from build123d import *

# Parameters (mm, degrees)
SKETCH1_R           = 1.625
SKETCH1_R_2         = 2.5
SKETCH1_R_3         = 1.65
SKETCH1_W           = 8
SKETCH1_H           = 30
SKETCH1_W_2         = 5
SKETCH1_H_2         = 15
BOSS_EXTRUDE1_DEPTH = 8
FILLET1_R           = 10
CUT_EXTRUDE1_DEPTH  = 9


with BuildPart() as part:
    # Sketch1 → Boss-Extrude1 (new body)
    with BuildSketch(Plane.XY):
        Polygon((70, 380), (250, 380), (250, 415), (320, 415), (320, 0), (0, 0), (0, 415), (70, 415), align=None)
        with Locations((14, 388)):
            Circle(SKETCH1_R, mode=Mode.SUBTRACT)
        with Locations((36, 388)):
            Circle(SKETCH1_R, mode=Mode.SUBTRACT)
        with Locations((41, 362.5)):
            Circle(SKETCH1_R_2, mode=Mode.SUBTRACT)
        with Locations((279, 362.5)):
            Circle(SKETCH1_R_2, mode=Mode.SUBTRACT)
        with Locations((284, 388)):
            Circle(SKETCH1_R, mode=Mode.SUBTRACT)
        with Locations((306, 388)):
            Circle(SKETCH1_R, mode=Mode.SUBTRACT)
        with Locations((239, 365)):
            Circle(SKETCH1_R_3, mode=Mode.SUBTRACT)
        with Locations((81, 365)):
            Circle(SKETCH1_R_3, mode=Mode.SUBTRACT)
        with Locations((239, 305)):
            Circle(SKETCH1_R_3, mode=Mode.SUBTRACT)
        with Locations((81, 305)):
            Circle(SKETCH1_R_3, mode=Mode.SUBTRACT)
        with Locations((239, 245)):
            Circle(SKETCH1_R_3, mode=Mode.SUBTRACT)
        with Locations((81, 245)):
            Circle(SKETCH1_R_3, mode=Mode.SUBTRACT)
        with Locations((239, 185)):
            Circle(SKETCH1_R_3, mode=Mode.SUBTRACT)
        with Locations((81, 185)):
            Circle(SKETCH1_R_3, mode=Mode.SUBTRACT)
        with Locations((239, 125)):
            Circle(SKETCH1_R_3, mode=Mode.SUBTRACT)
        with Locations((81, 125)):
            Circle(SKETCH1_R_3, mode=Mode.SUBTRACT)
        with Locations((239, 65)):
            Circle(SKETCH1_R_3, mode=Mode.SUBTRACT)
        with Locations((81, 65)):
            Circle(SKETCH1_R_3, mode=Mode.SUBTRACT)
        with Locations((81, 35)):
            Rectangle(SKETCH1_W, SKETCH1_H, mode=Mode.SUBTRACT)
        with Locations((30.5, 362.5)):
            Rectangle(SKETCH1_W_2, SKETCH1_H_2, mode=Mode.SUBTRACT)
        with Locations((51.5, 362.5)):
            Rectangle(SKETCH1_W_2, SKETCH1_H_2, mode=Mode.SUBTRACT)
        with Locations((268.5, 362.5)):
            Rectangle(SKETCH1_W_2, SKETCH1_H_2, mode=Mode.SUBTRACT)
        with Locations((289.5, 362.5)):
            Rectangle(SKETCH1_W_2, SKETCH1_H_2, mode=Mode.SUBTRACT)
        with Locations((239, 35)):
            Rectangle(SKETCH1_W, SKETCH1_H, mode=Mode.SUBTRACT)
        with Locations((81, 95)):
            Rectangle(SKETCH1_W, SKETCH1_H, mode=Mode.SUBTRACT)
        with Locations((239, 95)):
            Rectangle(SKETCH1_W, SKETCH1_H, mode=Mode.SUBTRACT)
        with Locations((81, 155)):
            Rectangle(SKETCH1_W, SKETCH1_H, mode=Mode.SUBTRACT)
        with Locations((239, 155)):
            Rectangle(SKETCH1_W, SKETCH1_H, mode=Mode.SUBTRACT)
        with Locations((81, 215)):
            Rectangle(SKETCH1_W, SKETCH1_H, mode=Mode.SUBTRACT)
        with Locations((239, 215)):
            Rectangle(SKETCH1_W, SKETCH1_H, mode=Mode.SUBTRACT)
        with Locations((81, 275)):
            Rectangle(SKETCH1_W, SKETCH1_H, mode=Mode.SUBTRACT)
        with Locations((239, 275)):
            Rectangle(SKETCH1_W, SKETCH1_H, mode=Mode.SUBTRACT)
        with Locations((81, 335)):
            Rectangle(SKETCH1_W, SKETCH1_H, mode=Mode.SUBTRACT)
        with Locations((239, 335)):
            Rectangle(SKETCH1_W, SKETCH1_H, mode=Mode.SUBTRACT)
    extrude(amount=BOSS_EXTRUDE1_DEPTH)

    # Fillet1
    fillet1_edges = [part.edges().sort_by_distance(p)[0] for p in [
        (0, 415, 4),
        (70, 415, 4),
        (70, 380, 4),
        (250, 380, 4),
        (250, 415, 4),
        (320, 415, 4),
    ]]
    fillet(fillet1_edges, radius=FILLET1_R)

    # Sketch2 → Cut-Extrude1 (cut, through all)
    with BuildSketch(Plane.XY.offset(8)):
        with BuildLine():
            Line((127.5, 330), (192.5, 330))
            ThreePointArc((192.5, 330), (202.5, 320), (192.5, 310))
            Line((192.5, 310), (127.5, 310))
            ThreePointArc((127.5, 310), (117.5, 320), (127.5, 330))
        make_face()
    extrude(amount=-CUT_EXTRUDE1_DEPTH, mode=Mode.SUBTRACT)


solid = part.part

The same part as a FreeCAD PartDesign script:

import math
import FreeCAD as App
import Part
import Sketcher
from FreeCAD import Vector


def edges_at(feature, points):
    """Names of the edges that pass closest to the given points."""
    edges = feature.Shape.Edges
    near = lambda p: min(range(len(edges)), key=lambda i: edges[i].distToShape(Part.Vertex(*p))[0])
    return sorted({f"Edge{near(p) + 1}" for p in points})


def add_polygon(sketch, points):
    """Adds a closed chain of lines whose ends are joined by coincident constraints."""
    first, n = sketch.GeometryCount, len(points)
    for a, b in zip(points, points[1:] + points[:1]):
        sketch.addGeometry(Part.LineSegment(App.Vector(*a, 0), App.Vector(*b, 0)), False)
    for i in range(n):
        sketch.addConstraint(Sketcher.Constraint("Coincident", first + i, 2, first + (i + 1) % n, 1))

doc = App.newDocument("Part")
body = doc.addObject("PartDesign::Body", "Body")

sketch1 = body.newObject("Sketcher::SketchObject", "Sketch")
sketch1.AttachmentSupport = (doc.getObject("XY_Plane"), [""])
sketch1.MapMode = "FlatFace"
add_polygon(sketch1, [(250, 380), (70, 380), (70, 415), (0, 415), (0, 0), (320, 0), (320, 415), (250, 415)])
add_polygon(sketch1, [(235, 20), (235, 50), (243, 50), (243, 20)])
sketch1.addGeometry(Part.Circle(Vector(239, 65, 0), Vector(0, 0, 1), 1.65), False)
add_polygon(sketch1, [(235, 80), (235, 110), (243, 110), (243, 80)])
sketch1.addGeometry(Part.Circle(Vector(239, 125, 0), Vector(0, 0, 1), 1.65), False)
add_polygon(sketch1, [(235, 140), (235, 170), (243, 170), (243, 140)])
sketch1.addGeometry(Part.Circle(Vector(239, 185, 0), Vector(0, 0, 1), 1.65), False)
add_polygon(sketch1, [(77, 20), (77, 50), (85, 50), (85, 20)])
sketch1.addGeometry(Part.Circle(Vector(81, 65, 0), Vector(0, 0, 1), 1.65), False)
add_polygon(sketch1, [(77, 80), (77, 110), (85, 110), (85, 80)])
sketch1.addGeometry(Part.Circle(Vector(81, 125, 0), Vector(0, 0, 1), 1.65), False)
add_polygon(sketch1, [(77, 140), (77, 170), (85, 170), (85, 140)])
sketch1.addGeometry(Part.Circle(Vector(81, 185, 0), Vector(0, 0, 1), 1.65), False)
add_polygon(sketch1, [(235, 200), (235, 230), (243, 230), (243, 200)])
sketch1.addGeometry(Part.Circle(Vector(239, 245, 0), Vector(0, 0, 1), 1.65), False)
add_polygon(sketch1, [(235, 260), (235, 290), (243, 290), (243, 260)])
sketch1.addGeometry(Part.Circle(Vector(239, 305, 0), Vector(0, 0, 1), 1.65), False)
add_polygon(sketch1, [(235, 320), (235, 350), (243, 350), (243, 320)])
add_polygon(sketch1, [(287, 355), (287, 370), (292, 370), (292, 355)])
sketch1.addGeometry(Part.Circle(Vector(279, 362.5, 0), Vector(0, 0, 1), 2.5), False)
sketch1.addGeometry(Part.Circle(Vector(306, 388, 0), Vector(0, 0, 1), 1.625), False)
sketch1.addGeometry(Part.Circle(Vector(284, 388, 0), Vector(0, 0, 1), 1.625), False)
add_polygon(sketch1, [(266, 355), (266, 370), (271, 370), (271, 355)])
sketch1.addGeometry(Part.Circle(Vector(239, 365, 0), Vector(0, 0, 1), 1.65), False)
add_polygon(sketch1, [(77, 200), (77, 230), (85, 230), (85, 200)])
sketch1.addGeometry(Part.Circle(Vector(81, 245, 0), Vector(0, 0, 1), 1.65), False)
add_polygon(sketch1, [(77, 260), (77, 290), (85, 290), (85, 260)])
sketch1.addGeometry(Part.Circle(Vector(81, 305, 0), Vector(0, 0, 1), 1.65), False)
add_polygon(sketch1, [(77, 320), (77, 350), (85, 350), (85, 320)])
sketch1.addGeometry(Part.Circle(Vector(81, 365, 0), Vector(0, 0, 1), 1.65), False)
add_polygon(sketch1, [(49, 355), (49, 370), (54, 370), (54, 355)])
sketch1.addGeometry(Part.Circle(Vector(41, 362.5, 0), Vector(0, 0, 1), 2.5), False)
add_polygon(sketch1, [(28, 355), (28, 370), (33, 370), (33, 355)])
sketch1.addGeometry(Part.Circle(Vector(36, 388, 0), Vector(0, 0, 1), 1.625), False)
sketch1.addGeometry(Part.Circle(Vector(14, 388, 0), Vector(0, 0, 1), 1.625), False)
sketch1.addConstraint(Sketcher.Constraint("Horizontal", 0))
sketch1.addConstraint(Sketcher.Constraint("Vertical", 1))
sketch1.addConstraint(Sketcher.Constraint("Horizontal", 2))
sketch1.addConstraint(Sketcher.Constraint("Vertical", 3))
sketch1.addConstraint(Sketcher.Constraint("Horizontal", 4))
sketch1.addConstraint(Sketcher.Constraint("Vertical", 5))
sketch1.addConstraint(Sketcher.Constraint("Horizontal", 6))
sketch1.addConstraint(Sketcher.Constraint("Vertical", 7))
sketch1.addConstraint(Sketcher.Constraint("Vertical", 8))
sketch1.addConstraint(Sketcher.Constraint("Horizontal", 9))
sketch1.addConstraint(Sketcher.Constraint("Vertical", 10))
sketch1.addConstraint(Sketcher.Constraint("Horizontal", 11))
sketch1.addConstraint(Sketcher.Constraint("Vertical", 13))
sketch1.addConstraint(Sketcher.Constraint("Horizontal", 14))
sketch1.addConstraint(Sketcher.Constraint("Vertical", 15))
sketch1.addConstraint(Sketcher.Constraint("Horizontal", 16))
sketch1.addConstraint(Sketcher.Constraint("Vertical", 18))
sketch1.addConstraint(Sketcher.Constraint("Horizontal", 19))
sketch1.addConstraint(Sketcher.Constraint("Vertical", 20))
sketch1.addConstraint(Sketcher.Constraint("Horizontal", 21))
sketch1.addConstraint(Sketcher.Constraint("Vertical", 23))
sketch1.addConstraint(Sketcher.Constraint("Horizontal", 24))
sketch1.addConstraint(Sketcher.Constraint("Vertical", 25))
sketch1.addConstraint(Sketcher.Constraint("Horizontal", 26))
sketch1.addConstraint(Sketcher.Constraint("Vertical", 28))
sketch1.addConstraint(Sketcher.Constraint("Horizontal", 29))
sketch1.addConstraint(Sketcher.Constraint("Vertical", 30))
sketch1.addConstraint(Sketcher.Constraint("Horizontal", 31))
sketch1.addConstraint(Sketcher.Constraint("Vertical", 33))
sketch1.addConstraint(Sketcher.Constraint("Horizontal", 34))
sketch1.addConstraint(Sketcher.Constraint("Vertical", 35))
sketch1.addConstraint(Sketcher.Constraint("Horizontal", 36))
sketch1.addConstraint(Sketcher.Constraint("Vertical", 38))
sketch1.addConstraint(Sketcher.Constraint("Horizontal", 39))
sketch1.addConstraint(Sketcher.Constraint("Vertical", 40))
sketch1.addConstraint(Sketcher.Constraint("Horizontal", 41))
sketch1.addConstraint(Sketcher.Constraint("Vertical", 43))
sketch1.addConstraint(Sketcher.Constraint("Horizontal", 44))
sketch1.addConstraint(Sketcher.Constraint("Vertical", 45))
sketch1.addConstraint(Sketcher.Constraint("Horizontal", 46))
sketch1.addConstraint(Sketcher.Constraint("Vertical", 48))
sketch1.addConstraint(Sketcher.Constraint("Horizontal", 49))
sketch1.addConstraint(Sketcher.Constraint("Vertical", 50))
sketch1.addConstraint(Sketcher.Constraint("Horizontal", 51))
sketch1.addConstraint(Sketcher.Constraint("Vertical", 52))
sketch1.addConstraint(Sketcher.Constraint("Horizontal", 53))
sketch1.addConstraint(Sketcher.Constraint("Vertical", 54))
sketch1.addConstraint(Sketcher.Constraint("Horizontal", 55))
sketch1.addConstraint(Sketcher.Constraint("Vertical", 59))
sketch1.addConstraint(Sketcher.Constraint("Horizontal", 60))
sketch1.addConstraint(Sketcher.Constraint("Vertical", 61))
sketch1.addConstraint(Sketcher.Constraint("Horizontal", 62))
sketch1.addConstraint(Sketcher.Constraint("Vertical", 64))
sketch1.addConstraint(Sketcher.Constraint("Horizontal", 65))
sketch1.addConstraint(Sketcher.Constraint("Vertical", 66))
sketch1.addConstraint(Sketcher.Constraint("Horizontal", 67))
sketch1.addConstraint(Sketcher.Constraint("Vertical", 69))
sketch1.addConstraint(Sketcher.Constraint("Horizontal", 70))
sketch1.addConstraint(Sketcher.Constraint("Vertical", 71))
sketch1.addConstraint(Sketcher.Constraint("Horizontal", 72))
sketch1.addConstraint(Sketcher.Constraint("Vertical", 74))
sketch1.addConstraint(Sketcher.Constraint("Horizontal", 75))
sketch1.addConstraint(Sketcher.Constraint("Vertical", 76))
sketch1.addConstraint(Sketcher.Constraint("Horizontal", 77))
sketch1.addConstraint(Sketcher.Constraint("Vertical", 79))
sketch1.addConstraint(Sketcher.Constraint("Horizontal", 80))
sketch1.addConstraint(Sketcher.Constraint("Vertical", 81))
sketch1.addConstraint(Sketcher.Constraint("Horizontal", 82))
sketch1.addConstraint(Sketcher.Constraint("Vertical", 84))
sketch1.addConstraint(Sketcher.Constraint("Horizontal", 85))
sketch1.addConstraint(Sketcher.Constraint("Vertical", 86))
sketch1.addConstraint(Sketcher.Constraint("Horizontal", 87))
sketch1.addConstraint(Sketcher.Constraint("Coincident", 3, 2, -1, 1))
sketch1.addConstraint(Sketcher.Constraint("Equal", 12, 17))
sketch1.addConstraint(Sketcher.Constraint("Equal", 17, 22))
sketch1.addConstraint(Sketcher.Constraint("Equal", 22, 27))
sketch1.addConstraint(Sketcher.Constraint("Equal", 27, 32))
sketch1.addConstraint(Sketcher.Constraint("Equal", 32, 37))
sketch1.addConstraint(Sketcher.Constraint("Equal", 37, 42))
sketch1.addConstraint(Sketcher.Constraint("Equal", 42, 47))
sketch1.addConstraint(Sketcher.Constraint("Equal", 57, 58))
sketch1.addConstraint(Sketcher.Constraint("Equal", 47, 63))
sketch1.addConstraint(Sketcher.Constraint("Equal", 63, 68))
sketch1.addConstraint(Sketcher.Constraint("Equal", 68, 73))
sketch1.addConstraint(Sketcher.Constraint("Equal", 73, 78))
sketch1.addConstraint(Sketcher.Constraint("Equal", 56, 83))
sketch1.addConstraint(Sketcher.Constraint("Equal", 58, 88))
sketch1.addConstraint(Sketcher.Constraint("Equal", 88, 89))
sketch1.addConstraint(Sketcher.Constraint("Horizontal", 12, 3, 27, 3))
sketch1.addConstraint(Sketcher.Constraint("Horizontal", 17, 3, 32, 3))
sketch1.addConstraint(Sketcher.Constraint("Horizontal", 22, 3, 37, 3))
sketch1.addConstraint(Sketcher.Constraint("Horizontal", 57, 3, 58, 3))
sketch1.addConstraint(Sketcher.Constraint("Horizontal", 42, 3, 68, 3))
sketch1.addConstraint(Sketcher.Constraint("Horizontal", 47, 3, 73, 3))
sketch1.addConstraint(Sketcher.Constraint("Horizontal", 63, 3, 78, 3))
sketch1.addConstraint(Sketcher.Constraint("Horizontal", 56, 3, 83, 3))
sketch1.addConstraint(Sketcher.Constraint("Horizontal", 58, 3, 88, 3))
sketch1.addConstraint(Sketcher.Constraint("Horizontal", 88, 3, 89, 3))
sketch1.addConstraint(Sketcher.Constraint("Horizontal", 2, 2, 5, 2))
sketch1.addConstraint(Sketcher.Constraint("Horizontal", 9, 2, 23, 2))
sketch1.addConstraint(Sketcher.Constraint("Horizontal", 11, 2, 25, 2))
sketch1.addConstraint(Sketcher.Constraint("Horizontal", 14, 2, 28, 2))
sketch1.addConstraint(Sketcher.Constraint("Horizontal", 16, 2, 30, 2))
sketch1.addConstraint(Sketcher.Constraint("Horizontal", 19, 2, 33, 2))
sketch1.addConstraint(Sketcher.Constraint("Horizontal", 21, 2, 35, 2))
sketch1.addConstraint(Sketcher.Constraint("Horizontal", 53, 2, 59, 2))
sketch1.addConstraint(Sketcher.Constraint("Horizontal", 55, 2, 61, 2))
sketch1.addConstraint(Sketcher.Constraint("Horizontal", 39, 2, 64, 2))
sketch1.addConstraint(Sketcher.Constraint("Horizontal", 41, 2, 66, 2))
sketch1.addConstraint(Sketcher.Constraint("Horizontal", 44, 2, 69, 2))
sketch1.addConstraint(Sketcher.Constraint("Horizontal", 46, 2, 71, 2))
sketch1.addConstraint(Sketcher.Constraint("Horizontal", 49, 2, 74, 2))
sketch1.addConstraint(Sketcher.Constraint("Horizontal", 51, 2, 76, 2))
sketch1.addConstraint(Sketcher.Constraint("Horizontal", 60, 2, 79, 2))
sketch1.addConstraint(Sketcher.Constraint("Horizontal", 62, 2, 81, 2))
sketch1.addConstraint(Sketcher.Constraint("Horizontal", 80, 2, 84, 2))
sketch1.addConstraint(Sketcher.Constraint("Horizontal", 82, 2, 86, 2))
sketch1.addConstraint(Sketcher.Constraint("Vertical", 12, 3, 17, 3))
sketch1.addConstraint(Sketcher.Constraint("Vertical", 17, 3, 22, 3))
sketch1.addConstraint(Sketcher.Constraint("Vertical", 27, 3, 32, 3))
sketch1.addConstraint(Sketcher.Constraint("Vertical", 32, 3, 37, 3))
sketch1.addConstraint(Sketcher.Constraint("Vertical", 22, 3, 42, 3))
sketch1.addConstraint(Sketcher.Constraint("Vertical", 42, 3, 47, 3))
sketch1.addConstraint(Sketcher.Constraint("Vertical", 47, 3, 63, 3))
sketch1.addConstraint(Sketcher.Constraint("Vertical", 37, 3, 68, 3))
sketch1.addConstraint(Sketcher.Constraint("Vertical", 68, 3, 73, 3))
sketch1.addConstraint(Sketcher.Constraint("Vertical", 73, 3, 78, 3))
sketch1.addConstraint(Sketcher.Constraint("Vertical", 11, 2, 13, 2))
sketch1.addConstraint(Sketcher.Constraint("Vertical", 10, 2, 14, 2))
sketch1.addConstraint(Sketcher.Constraint("Vertical", 16, 2, 18, 2))
sketch1.addConstraint(Sketcher.Constraint("Vertical", 15, 2, 19, 2))
sketch1.addConstraint(Sketcher.Constraint("Vertical", 26, 2, 28, 2))
sketch1.addConstraint(Sketcher.Constraint("Vertical", 25, 2, 29, 2))
sketch1.addConstraint(Sketcher.Constraint("Vertical", 31, 2, 33, 2))
sketch1.addConstraint(Sketcher.Constraint("Vertical", 30, 2, 34, 2))
sketch1.addConstraint(Sketcher.Constraint("Vertical", 21, 2, 38, 2))
sketch1.addConstraint(Sketcher.Constraint("Vertical", 20, 2, 39, 2))
sketch1.addConstraint(Sketcher.Constraint("Vertical", 41, 2, 43, 2))
sketch1.addConstraint(Sketcher.Constraint("Vertical", 40, 2, 44, 2))
sketch1.addConstraint(Sketcher.Constraint("Vertical", 46, 2, 48, 2))
sketch1.addConstraint(Sketcher.Constraint("Vertical", 45, 2, 49, 2))
sketch1.addConstraint(Sketcher.Constraint("Vertical", 36, 2, 64, 2))
sketch1.addConstraint(Sketcher.Constraint("Vertical", 35, 2, 65, 2))
sketch1.addConstraint(Sketcher.Constraint("Vertical", 67, 2, 69, 2))
sketch1.addConstraint(Sketcher.Constraint("Vertical", 66, 2, 70, 2))
sketch1.addConstraint(Sketcher.Constraint("Vertical", 72, 2, 74, 2))
sketch1.addConstraint(Sketcher.Constraint("Vertical", 71, 2, 75, 2))
sketch1.addConstraint(Sketcher.Constraint("Equal", 2, 6))
sketch1.addConstraint(Sketcher.Constraint("Equal", 21, 24))
sketch1.addConstraint(Sketcher.Constraint("Equal", 55, 60))
sketch1.addConstraint(Sketcher.Constraint("Equal", 62, 80))
sketch1.addConstraint(Sketcher.Constraint("Equal", 82, 85))
sketch1.addConstraint(Sketcher.Constraint("Equal", 10, 13))
sketch1.addConstraint(Sketcher.Constraint("Equal", 15, 18))
sketch1.addConstraint(Sketcher.Constraint("Equal", 35, 38))
sketch1.addConstraint(Sketcher.Constraint("Equal", 40, 43))
sketch1.addConstraint(Sketcher.Constraint("Equal", 45, 48))
sketch1.addConstraint(Sketcher.Constraint("Diameter", 56, 5.0))
sketch1.addConstraint(Sketcher.Constraint("Diameter", 12, 3.3))
sketch1.addConstraint(Sketcher.Constraint("Diameter", 57, 3.25))
sketch1.addConstraint(Sketcher.Constraint("DistanceX", 0, 2, 0, 1, 180.0))
sketch1.addConstraint(Sketcher.Constraint("DistanceX", 2, 2, 2, 1, 70.0))
sketch1.addConstraint(Sketcher.Constraint("DistanceX", 9, 1, 9, 2, 8.0))
sketch1.addConstraint(Sketcher.Constraint("DistanceX", 53, 1, 53, 2, 5.0))
sketch1.addConstraint(Sketcher.Constraint("DistanceY", 1, 1, 1, 2, 35.0))
sketch1.addConstraint(Sketcher.Constraint("DistanceY", 3, 2, 3, 1, 415.0))
sketch1.addConstraint(Sketcher.Constraint("DistanceY", 8, 1, 8, 2, 30.0))
sketch1.addConstraint(Sketcher.Constraint("DistanceY", 52, 1, 52, 2, 15.0))
sketch1.addConstraint(Sketcher.Constraint("DistanceX", -1, 1, 12, 3, 239.0))
sketch1.addConstraint(Sketcher.Constraint("DistanceY", -1, 1, 12, 3, 65.0))
sketch1.addConstraint(Sketcher.Constraint("DistanceY", -1, 1, 17, 3, 125.0))
sketch1.addConstraint(Sketcher.Constraint("DistanceY", -1, 1, 22, 3, 185.0))
sketch1.addConstraint(Sketcher.Constraint("DistanceX", -1, 1, 27, 3, 81.0))
sketch1.addConstraint(Sketcher.Constraint("DistanceY", -1, 1, 42, 3, 245.0))
sketch1.addConstraint(Sketcher.Constraint("DistanceY", -1, 1, 47, 3, 305.0))
sketch1.addConstraint(Sketcher.Constraint("DistanceX", -1, 1, 56, 3, 279.0))
sketch1.addConstraint(Sketcher.Constraint("DistanceX", -1, 1, 57, 3, 306.0))
sketch1.addConstraint(Sketcher.Constraint("DistanceY", -1, 1, 57, 3, 388.0))
sketch1.addConstraint(Sketcher.Constraint("DistanceX", -1, 1, 58, 3, 284.0))
sketch1.addConstraint(Sketcher.Constraint("DistanceY", -1, 1, 63, 3, 365.0))
sketch1.addConstraint(Sketcher.Constraint("DistanceX", -1, 1, 83, 3, 41.0))
sketch1.addConstraint(Sketcher.Constraint("DistanceX", -1, 1, 88, 3, 36.0))
sketch1.addConstraint(Sketcher.Constraint("DistanceX", -1, 1, 89, 3, 14.0))
sketch1.addConstraint(Sketcher.Constraint("DistanceX", -1, 1, 8, 2, 235.0))
sketch1.addConstraint(Sketcher.Constraint("DistanceY", -1, 1, 8, 2, 50.0))
sketch1.addConstraint(Sketcher.Constraint("DistanceY", -1, 1, 13, 2, 110.0))
sketch1.addConstraint(Sketcher.Constraint("DistanceY", -1, 1, 18, 2, 170.0))
sketch1.addConstraint(Sketcher.Constraint("DistanceX", -1, 1, 23, 2, 77.0))
sketch1.addConstraint(Sketcher.Constraint("DistanceY", -1, 1, 38, 2, 230.0))
sketch1.addConstraint(Sketcher.Constraint("DistanceY", -1, 1, 43, 2, 290.0))
sketch1.addConstraint(Sketcher.Constraint("DistanceY", -1, 1, 48, 2, 350.0))
sketch1.addConstraint(Sketcher.Constraint("DistanceX", -1, 1, 52, 2, 287.0))
sketch1.addConstraint(Sketcher.Constraint("DistanceY", -1, 1, 52, 2, 370.0))
sketch1.addConstraint(Sketcher.Constraint("DistanceX", -1, 1, 59, 2, 266.0))
sketch1.addConstraint(Sketcher.Constraint("DistanceX", -1, 1, 79, 2, 49.0))
sketch1.addConstraint(Sketcher.Constraint("DistanceX", -1, 1, 84, 2, 28.0))
sketch1.addConstraint(Sketcher.Constraint("DistanceY", -1, 1, 56, 3, 362.5))
pad1 = body.newObject("PartDesign::Pad", "Pad")
pad1.Profile = sketch1
pad1.Length = 8
doc.recompute()

fillet = body.newObject("PartDesign::Fillet", "Fillet")
fillet.Base = (pad1, edges_at(pad1, [
    (0, 415, 4),
    (70, 415, 4),
    (70, 380, 4),
    (250, 380, 4),
    (250, 415, 4),
    (320, 415, 4),
]))
fillet.Radius = 10

sketch2 = body.newObject("Sketcher::SketchObject", "Sketch001")
sketch2.AttachmentSupport = (doc.getObject("XY_Plane"), [""])
sketch2.MapMode = "FlatFace"
sketch2.AttachmentOffset = App.Placement(Vector(0, 0, 8), App.Rotation())
sketch2.addGeometry(Part.LineSegment(Vector(192.5, 330, 0), Vector(127.5, 330, 0)), False)
sketch2.addGeometry(Part.ArcOfCircle(Part.Circle(Vector(127.5, 320, 0), Vector(0, 0, 1), 10), math.radians(90), math.radians(270)), False)
sketch2.addGeometry(Part.LineSegment(Vector(127.5, 310, 0), Vector(192.5, 310, 0)), False)
sketch2.addGeometry(Part.ArcOfCircle(Part.Circle(Vector(192.5, 320, 0), Vector(0, 0, 1), 10), math.radians(-90), math.radians(90)), False)
sketch2.addConstraint(Sketcher.Constraint("Tangent", 0, 2, 1, 1))
sketch2.addConstraint(Sketcher.Constraint("Tangent", 1, 2, 2, 1))
sketch2.addConstraint(Sketcher.Constraint("Tangent", 2, 2, 3, 1))
sketch2.addConstraint(Sketcher.Constraint("Tangent", 3, 2, 0, 1))
sketch2.addConstraint(Sketcher.Constraint("Horizontal", 0))
sketch2.addConstraint(Sketcher.Constraint("Horizontal", 2))
sketch2.addConstraint(Sketcher.Constraint("Radius", 1, 10.0))
sketch2.addConstraint(Sketcher.Constraint("DistanceX", 0, 2, 0, 1, 65.0))
sketch2.addConstraint(Sketcher.Constraint("DistanceY", -1, 1, 1, 3, 320.0))
sketch2.addConstraint(Sketcher.Constraint("DistanceX", -1, 1, 1, 3, 127.5))
pocket1 = body.newObject("PartDesign::Pocket", "Pocket")
pocket1.Profile = sketch2
pocket1.Type = "ThroughAll"

doc.recompute()
